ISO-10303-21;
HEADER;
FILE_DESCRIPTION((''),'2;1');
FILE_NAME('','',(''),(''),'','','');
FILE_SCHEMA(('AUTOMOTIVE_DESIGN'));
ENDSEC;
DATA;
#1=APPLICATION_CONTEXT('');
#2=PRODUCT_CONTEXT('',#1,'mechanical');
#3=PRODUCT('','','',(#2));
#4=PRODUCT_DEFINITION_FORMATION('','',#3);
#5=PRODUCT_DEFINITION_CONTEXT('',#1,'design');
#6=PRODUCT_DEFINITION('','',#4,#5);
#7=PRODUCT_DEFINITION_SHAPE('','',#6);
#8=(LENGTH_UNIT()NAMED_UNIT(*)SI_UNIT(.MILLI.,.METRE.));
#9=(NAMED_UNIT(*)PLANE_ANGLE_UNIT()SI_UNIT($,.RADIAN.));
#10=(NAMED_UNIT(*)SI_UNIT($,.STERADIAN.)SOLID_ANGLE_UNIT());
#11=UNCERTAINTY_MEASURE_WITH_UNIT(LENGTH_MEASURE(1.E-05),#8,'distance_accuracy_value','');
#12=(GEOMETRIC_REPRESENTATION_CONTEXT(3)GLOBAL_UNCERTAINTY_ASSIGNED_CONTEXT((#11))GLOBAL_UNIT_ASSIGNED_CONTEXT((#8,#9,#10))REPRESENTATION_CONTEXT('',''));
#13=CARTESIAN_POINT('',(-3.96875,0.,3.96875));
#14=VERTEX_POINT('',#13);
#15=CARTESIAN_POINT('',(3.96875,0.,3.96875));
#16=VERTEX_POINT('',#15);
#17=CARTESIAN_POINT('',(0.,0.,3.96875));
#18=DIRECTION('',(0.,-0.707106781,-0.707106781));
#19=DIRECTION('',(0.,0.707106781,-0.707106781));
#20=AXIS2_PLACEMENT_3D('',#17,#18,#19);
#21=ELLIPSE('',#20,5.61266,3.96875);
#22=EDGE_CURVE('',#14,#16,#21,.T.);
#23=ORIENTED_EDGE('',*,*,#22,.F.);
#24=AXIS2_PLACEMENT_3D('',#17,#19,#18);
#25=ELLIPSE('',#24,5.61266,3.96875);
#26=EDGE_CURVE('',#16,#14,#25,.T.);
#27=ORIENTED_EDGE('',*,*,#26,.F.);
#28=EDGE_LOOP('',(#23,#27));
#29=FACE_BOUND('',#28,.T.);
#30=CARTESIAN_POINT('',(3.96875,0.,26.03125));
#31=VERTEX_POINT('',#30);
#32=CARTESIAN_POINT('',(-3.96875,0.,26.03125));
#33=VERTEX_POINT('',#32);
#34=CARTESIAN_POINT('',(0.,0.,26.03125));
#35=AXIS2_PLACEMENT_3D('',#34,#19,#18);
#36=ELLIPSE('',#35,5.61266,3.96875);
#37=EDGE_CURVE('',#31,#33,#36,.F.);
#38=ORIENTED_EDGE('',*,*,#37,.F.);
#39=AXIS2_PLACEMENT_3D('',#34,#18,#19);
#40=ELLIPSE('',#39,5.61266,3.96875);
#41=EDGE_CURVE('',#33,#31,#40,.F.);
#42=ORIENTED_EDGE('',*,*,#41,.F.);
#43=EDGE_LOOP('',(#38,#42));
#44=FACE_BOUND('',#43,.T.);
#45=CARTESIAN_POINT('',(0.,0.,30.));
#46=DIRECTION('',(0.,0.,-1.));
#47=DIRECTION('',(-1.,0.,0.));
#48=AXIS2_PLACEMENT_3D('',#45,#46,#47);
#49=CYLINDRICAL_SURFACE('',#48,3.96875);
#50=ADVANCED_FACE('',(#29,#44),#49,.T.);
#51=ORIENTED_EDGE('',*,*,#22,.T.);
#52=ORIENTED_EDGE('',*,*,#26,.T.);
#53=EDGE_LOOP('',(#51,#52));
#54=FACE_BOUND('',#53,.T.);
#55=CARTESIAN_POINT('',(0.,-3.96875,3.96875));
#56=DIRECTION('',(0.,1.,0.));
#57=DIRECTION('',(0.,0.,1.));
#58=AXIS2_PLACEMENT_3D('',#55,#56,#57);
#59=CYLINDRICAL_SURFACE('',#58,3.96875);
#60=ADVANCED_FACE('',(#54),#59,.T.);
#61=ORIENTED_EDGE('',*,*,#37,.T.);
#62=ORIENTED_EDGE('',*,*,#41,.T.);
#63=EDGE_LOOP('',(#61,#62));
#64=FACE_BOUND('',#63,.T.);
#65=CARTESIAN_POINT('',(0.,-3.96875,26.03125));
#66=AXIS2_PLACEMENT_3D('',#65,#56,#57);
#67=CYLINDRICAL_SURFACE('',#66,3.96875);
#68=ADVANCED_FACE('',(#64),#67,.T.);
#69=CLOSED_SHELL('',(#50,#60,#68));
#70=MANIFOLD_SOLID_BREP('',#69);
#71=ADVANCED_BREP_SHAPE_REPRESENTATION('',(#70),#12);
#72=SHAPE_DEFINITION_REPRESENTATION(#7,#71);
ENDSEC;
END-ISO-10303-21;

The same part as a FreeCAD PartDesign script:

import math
import FreeCAD as App
import Part
import Sketcher
Q = App.Units.Quantity

doc = App.newDocument("Part")
body = doc.addObject("PartDesign::Body", "Body")

# Sketch on XY plane
sketch1 = body.newObject("Sketcher::SketchObject", "Sketch")
sketch1.AttachmentSupport = (doc.getObject("XY_Plane"), [""])
sketch1.MapMode = "FlatFace"
sketch1.addGeometry(Part.Circle(App.Vector(0, 0, 0), App.Vector(0, 0, 1), 4), False)
sketch1.addConstraint([
    Sketcher.Constraint("Coincident", 0, 3, -1, 1),
    Sketcher.Constraint("Diameter", 0, Q("0.3125 in")),
])
pad1 = body.newObject("PartDesign::Pad", "Pad")
pad1.Profile = sketch1
pad1.Length = 30

# Sketch on XZ plane
sketch2 = body.newObject("Sketcher::SketchObject", "Sketch001")
sketch2.AttachmentSupport = (doc.getObject("XZ_Plane"), [""])
sketch2.MapMode = "FlatFace"
sketch2.addGeometry([
    Part.ArcOfCircle(Part.Circle(App.Vector(0, 26, 0), App.Vector(0, 0, 1), 4), math.radians(90), math.radians(180)),  # 0
    Part.LineSegment(App.Vector(-4, 26, 0), App.Vector(-4, 30, 0)),  # 1
    Part.LineSegment(App.Vector(-4, 30, 0), App.Vector(0, 30, 0)),  # 2
    Part.LineSegment(App.Vector(4, 30, 0), App.Vector(4, 26, 0)),  # 3
    Part.ArcOfCircle(Part.Circle(App.Vector(0, 26, 0), App.Vector(0, 0, 1), 4), math.radians(0), math.radians(90)),  # 4
    Part.LineSegment(App.Vector(0, 30, 0), App.Vector(4, 30, 0)),  # 5
], False)
sketch2.addConstraint([
    Sketcher.Constraint("Tangent", 0, 2, 1, 1),
    Sketcher.Constraint("Coincident", 1, 2, 2, 1),
    Sketcher.Constraint("Tangent", 2, 2, 0, 1),
    Sketcher.Constraint("Tangent", 3, 2, 4, 1),
    Sketcher.Constraint("Tangent", 4, 2, 5, 1),
    Sketcher.Constraint("Coincident", 5, 2, 3, 1),
    Sketcher.Constraint("Vertical", 1),
    Sketcher.Constraint("Horizontal", 2),
    Sketcher.Constraint("Vertical", 3),
    Sketcher.Constraint("Horizontal", 5),
    Sketcher.Constraint("Coincident", 4, 3, 0, 3),
    Sketcher.Constraint("Equal", 0, 4),
    Sketcher.Constraint("PointOnObject", 0, 3, -2),
    Sketcher.Constraint("Radius", 0, Q("0.15625 in")),
    Sketcher.Constraint("DistanceY", -1, 1, 1, 2, Q("30 mm")),
])
pocket1 = body.newObject("PartDesign::Pocket", "Pocket")
pocket1.Profile = sketch2
pocket1.Type = "ThroughAll"
pocket1.Midplane = True

# Sketch on XZ plane
sketch3 = body.newObject("Sketcher::SketchObject", "Sketch002")
sketch3.AttachmentSupport = (doc.getObject("XZ_Plane"), [""])
sketch3.MapMode = "FlatFace"
sketch3.addGeometry([
    Part.ArcOfCircle(Part.Circle(App.Vector(0, 4, 0), App.Vector(0, 0, 1), 4), math.radians(-90), math.radians(0)),  # 0
    Part.LineSegment(App.Vector(4, 4, 0), App.Vector(4, 0, 0)),  # 1
    Part.LineSegment(App.Vector(4, 0, 0), App.Vector(0, 0, 0)),  # 2
    Part.LineSegment(App.Vector(-4, 0, 0), App.Vector(-4, 4, 0)),  # 3
    Part.ArcOfCircle(Part.Circle(App.Vector(0, 4, 0), App.Vector(0, 0, 1), 4), math.radians(180), math.radians(270)),  # 4
    Part.LineSegment(App.Vector(0, 0, 0), App.Vector(-4, 0, 0)),  # 5
], False)
sketch3.addConstraint([
    Sketcher.Constraint("Tangent", 0, 2, 1, 1),
    Sketcher.Constraint("Coincident", 1, 2, 2, 1),
    Sketcher.Constraint("Tangent", 2, 2, 0, 1),
    Sketcher.Constraint("Tangent", 3, 2, 4, 1),
    Sketcher.Constraint("Tangent", 4, 2, 5, 1),
    Sketcher.Constraint("Coincident", 5, 2, 3, 1),
    Sketcher.Constraint("Vertical", 1),
    Sketcher.Constraint("Horizontal", 2),
    Sketcher.Constraint("Vertical", 3),
    Sketcher.Constraint("Horizontal", 5),
    Sketcher.Constraint("Coincident", 2, 2, -1, 1),
    Sketcher.Constraint("Coincident", 4, 2, -1, 1),
    Sketcher.Constraint("Equal", 0, 4),
    Sketcher.Constraint("Radius", 0, Q("0.15625 in")),
])
pocket2 = body.newObject("PartDesign::Pocket", "Pocket001")
pocket2.Profile = sketch3
pocket2.Type = "ThroughAll"
pocket2.Midplane = True

doc.recompute()
